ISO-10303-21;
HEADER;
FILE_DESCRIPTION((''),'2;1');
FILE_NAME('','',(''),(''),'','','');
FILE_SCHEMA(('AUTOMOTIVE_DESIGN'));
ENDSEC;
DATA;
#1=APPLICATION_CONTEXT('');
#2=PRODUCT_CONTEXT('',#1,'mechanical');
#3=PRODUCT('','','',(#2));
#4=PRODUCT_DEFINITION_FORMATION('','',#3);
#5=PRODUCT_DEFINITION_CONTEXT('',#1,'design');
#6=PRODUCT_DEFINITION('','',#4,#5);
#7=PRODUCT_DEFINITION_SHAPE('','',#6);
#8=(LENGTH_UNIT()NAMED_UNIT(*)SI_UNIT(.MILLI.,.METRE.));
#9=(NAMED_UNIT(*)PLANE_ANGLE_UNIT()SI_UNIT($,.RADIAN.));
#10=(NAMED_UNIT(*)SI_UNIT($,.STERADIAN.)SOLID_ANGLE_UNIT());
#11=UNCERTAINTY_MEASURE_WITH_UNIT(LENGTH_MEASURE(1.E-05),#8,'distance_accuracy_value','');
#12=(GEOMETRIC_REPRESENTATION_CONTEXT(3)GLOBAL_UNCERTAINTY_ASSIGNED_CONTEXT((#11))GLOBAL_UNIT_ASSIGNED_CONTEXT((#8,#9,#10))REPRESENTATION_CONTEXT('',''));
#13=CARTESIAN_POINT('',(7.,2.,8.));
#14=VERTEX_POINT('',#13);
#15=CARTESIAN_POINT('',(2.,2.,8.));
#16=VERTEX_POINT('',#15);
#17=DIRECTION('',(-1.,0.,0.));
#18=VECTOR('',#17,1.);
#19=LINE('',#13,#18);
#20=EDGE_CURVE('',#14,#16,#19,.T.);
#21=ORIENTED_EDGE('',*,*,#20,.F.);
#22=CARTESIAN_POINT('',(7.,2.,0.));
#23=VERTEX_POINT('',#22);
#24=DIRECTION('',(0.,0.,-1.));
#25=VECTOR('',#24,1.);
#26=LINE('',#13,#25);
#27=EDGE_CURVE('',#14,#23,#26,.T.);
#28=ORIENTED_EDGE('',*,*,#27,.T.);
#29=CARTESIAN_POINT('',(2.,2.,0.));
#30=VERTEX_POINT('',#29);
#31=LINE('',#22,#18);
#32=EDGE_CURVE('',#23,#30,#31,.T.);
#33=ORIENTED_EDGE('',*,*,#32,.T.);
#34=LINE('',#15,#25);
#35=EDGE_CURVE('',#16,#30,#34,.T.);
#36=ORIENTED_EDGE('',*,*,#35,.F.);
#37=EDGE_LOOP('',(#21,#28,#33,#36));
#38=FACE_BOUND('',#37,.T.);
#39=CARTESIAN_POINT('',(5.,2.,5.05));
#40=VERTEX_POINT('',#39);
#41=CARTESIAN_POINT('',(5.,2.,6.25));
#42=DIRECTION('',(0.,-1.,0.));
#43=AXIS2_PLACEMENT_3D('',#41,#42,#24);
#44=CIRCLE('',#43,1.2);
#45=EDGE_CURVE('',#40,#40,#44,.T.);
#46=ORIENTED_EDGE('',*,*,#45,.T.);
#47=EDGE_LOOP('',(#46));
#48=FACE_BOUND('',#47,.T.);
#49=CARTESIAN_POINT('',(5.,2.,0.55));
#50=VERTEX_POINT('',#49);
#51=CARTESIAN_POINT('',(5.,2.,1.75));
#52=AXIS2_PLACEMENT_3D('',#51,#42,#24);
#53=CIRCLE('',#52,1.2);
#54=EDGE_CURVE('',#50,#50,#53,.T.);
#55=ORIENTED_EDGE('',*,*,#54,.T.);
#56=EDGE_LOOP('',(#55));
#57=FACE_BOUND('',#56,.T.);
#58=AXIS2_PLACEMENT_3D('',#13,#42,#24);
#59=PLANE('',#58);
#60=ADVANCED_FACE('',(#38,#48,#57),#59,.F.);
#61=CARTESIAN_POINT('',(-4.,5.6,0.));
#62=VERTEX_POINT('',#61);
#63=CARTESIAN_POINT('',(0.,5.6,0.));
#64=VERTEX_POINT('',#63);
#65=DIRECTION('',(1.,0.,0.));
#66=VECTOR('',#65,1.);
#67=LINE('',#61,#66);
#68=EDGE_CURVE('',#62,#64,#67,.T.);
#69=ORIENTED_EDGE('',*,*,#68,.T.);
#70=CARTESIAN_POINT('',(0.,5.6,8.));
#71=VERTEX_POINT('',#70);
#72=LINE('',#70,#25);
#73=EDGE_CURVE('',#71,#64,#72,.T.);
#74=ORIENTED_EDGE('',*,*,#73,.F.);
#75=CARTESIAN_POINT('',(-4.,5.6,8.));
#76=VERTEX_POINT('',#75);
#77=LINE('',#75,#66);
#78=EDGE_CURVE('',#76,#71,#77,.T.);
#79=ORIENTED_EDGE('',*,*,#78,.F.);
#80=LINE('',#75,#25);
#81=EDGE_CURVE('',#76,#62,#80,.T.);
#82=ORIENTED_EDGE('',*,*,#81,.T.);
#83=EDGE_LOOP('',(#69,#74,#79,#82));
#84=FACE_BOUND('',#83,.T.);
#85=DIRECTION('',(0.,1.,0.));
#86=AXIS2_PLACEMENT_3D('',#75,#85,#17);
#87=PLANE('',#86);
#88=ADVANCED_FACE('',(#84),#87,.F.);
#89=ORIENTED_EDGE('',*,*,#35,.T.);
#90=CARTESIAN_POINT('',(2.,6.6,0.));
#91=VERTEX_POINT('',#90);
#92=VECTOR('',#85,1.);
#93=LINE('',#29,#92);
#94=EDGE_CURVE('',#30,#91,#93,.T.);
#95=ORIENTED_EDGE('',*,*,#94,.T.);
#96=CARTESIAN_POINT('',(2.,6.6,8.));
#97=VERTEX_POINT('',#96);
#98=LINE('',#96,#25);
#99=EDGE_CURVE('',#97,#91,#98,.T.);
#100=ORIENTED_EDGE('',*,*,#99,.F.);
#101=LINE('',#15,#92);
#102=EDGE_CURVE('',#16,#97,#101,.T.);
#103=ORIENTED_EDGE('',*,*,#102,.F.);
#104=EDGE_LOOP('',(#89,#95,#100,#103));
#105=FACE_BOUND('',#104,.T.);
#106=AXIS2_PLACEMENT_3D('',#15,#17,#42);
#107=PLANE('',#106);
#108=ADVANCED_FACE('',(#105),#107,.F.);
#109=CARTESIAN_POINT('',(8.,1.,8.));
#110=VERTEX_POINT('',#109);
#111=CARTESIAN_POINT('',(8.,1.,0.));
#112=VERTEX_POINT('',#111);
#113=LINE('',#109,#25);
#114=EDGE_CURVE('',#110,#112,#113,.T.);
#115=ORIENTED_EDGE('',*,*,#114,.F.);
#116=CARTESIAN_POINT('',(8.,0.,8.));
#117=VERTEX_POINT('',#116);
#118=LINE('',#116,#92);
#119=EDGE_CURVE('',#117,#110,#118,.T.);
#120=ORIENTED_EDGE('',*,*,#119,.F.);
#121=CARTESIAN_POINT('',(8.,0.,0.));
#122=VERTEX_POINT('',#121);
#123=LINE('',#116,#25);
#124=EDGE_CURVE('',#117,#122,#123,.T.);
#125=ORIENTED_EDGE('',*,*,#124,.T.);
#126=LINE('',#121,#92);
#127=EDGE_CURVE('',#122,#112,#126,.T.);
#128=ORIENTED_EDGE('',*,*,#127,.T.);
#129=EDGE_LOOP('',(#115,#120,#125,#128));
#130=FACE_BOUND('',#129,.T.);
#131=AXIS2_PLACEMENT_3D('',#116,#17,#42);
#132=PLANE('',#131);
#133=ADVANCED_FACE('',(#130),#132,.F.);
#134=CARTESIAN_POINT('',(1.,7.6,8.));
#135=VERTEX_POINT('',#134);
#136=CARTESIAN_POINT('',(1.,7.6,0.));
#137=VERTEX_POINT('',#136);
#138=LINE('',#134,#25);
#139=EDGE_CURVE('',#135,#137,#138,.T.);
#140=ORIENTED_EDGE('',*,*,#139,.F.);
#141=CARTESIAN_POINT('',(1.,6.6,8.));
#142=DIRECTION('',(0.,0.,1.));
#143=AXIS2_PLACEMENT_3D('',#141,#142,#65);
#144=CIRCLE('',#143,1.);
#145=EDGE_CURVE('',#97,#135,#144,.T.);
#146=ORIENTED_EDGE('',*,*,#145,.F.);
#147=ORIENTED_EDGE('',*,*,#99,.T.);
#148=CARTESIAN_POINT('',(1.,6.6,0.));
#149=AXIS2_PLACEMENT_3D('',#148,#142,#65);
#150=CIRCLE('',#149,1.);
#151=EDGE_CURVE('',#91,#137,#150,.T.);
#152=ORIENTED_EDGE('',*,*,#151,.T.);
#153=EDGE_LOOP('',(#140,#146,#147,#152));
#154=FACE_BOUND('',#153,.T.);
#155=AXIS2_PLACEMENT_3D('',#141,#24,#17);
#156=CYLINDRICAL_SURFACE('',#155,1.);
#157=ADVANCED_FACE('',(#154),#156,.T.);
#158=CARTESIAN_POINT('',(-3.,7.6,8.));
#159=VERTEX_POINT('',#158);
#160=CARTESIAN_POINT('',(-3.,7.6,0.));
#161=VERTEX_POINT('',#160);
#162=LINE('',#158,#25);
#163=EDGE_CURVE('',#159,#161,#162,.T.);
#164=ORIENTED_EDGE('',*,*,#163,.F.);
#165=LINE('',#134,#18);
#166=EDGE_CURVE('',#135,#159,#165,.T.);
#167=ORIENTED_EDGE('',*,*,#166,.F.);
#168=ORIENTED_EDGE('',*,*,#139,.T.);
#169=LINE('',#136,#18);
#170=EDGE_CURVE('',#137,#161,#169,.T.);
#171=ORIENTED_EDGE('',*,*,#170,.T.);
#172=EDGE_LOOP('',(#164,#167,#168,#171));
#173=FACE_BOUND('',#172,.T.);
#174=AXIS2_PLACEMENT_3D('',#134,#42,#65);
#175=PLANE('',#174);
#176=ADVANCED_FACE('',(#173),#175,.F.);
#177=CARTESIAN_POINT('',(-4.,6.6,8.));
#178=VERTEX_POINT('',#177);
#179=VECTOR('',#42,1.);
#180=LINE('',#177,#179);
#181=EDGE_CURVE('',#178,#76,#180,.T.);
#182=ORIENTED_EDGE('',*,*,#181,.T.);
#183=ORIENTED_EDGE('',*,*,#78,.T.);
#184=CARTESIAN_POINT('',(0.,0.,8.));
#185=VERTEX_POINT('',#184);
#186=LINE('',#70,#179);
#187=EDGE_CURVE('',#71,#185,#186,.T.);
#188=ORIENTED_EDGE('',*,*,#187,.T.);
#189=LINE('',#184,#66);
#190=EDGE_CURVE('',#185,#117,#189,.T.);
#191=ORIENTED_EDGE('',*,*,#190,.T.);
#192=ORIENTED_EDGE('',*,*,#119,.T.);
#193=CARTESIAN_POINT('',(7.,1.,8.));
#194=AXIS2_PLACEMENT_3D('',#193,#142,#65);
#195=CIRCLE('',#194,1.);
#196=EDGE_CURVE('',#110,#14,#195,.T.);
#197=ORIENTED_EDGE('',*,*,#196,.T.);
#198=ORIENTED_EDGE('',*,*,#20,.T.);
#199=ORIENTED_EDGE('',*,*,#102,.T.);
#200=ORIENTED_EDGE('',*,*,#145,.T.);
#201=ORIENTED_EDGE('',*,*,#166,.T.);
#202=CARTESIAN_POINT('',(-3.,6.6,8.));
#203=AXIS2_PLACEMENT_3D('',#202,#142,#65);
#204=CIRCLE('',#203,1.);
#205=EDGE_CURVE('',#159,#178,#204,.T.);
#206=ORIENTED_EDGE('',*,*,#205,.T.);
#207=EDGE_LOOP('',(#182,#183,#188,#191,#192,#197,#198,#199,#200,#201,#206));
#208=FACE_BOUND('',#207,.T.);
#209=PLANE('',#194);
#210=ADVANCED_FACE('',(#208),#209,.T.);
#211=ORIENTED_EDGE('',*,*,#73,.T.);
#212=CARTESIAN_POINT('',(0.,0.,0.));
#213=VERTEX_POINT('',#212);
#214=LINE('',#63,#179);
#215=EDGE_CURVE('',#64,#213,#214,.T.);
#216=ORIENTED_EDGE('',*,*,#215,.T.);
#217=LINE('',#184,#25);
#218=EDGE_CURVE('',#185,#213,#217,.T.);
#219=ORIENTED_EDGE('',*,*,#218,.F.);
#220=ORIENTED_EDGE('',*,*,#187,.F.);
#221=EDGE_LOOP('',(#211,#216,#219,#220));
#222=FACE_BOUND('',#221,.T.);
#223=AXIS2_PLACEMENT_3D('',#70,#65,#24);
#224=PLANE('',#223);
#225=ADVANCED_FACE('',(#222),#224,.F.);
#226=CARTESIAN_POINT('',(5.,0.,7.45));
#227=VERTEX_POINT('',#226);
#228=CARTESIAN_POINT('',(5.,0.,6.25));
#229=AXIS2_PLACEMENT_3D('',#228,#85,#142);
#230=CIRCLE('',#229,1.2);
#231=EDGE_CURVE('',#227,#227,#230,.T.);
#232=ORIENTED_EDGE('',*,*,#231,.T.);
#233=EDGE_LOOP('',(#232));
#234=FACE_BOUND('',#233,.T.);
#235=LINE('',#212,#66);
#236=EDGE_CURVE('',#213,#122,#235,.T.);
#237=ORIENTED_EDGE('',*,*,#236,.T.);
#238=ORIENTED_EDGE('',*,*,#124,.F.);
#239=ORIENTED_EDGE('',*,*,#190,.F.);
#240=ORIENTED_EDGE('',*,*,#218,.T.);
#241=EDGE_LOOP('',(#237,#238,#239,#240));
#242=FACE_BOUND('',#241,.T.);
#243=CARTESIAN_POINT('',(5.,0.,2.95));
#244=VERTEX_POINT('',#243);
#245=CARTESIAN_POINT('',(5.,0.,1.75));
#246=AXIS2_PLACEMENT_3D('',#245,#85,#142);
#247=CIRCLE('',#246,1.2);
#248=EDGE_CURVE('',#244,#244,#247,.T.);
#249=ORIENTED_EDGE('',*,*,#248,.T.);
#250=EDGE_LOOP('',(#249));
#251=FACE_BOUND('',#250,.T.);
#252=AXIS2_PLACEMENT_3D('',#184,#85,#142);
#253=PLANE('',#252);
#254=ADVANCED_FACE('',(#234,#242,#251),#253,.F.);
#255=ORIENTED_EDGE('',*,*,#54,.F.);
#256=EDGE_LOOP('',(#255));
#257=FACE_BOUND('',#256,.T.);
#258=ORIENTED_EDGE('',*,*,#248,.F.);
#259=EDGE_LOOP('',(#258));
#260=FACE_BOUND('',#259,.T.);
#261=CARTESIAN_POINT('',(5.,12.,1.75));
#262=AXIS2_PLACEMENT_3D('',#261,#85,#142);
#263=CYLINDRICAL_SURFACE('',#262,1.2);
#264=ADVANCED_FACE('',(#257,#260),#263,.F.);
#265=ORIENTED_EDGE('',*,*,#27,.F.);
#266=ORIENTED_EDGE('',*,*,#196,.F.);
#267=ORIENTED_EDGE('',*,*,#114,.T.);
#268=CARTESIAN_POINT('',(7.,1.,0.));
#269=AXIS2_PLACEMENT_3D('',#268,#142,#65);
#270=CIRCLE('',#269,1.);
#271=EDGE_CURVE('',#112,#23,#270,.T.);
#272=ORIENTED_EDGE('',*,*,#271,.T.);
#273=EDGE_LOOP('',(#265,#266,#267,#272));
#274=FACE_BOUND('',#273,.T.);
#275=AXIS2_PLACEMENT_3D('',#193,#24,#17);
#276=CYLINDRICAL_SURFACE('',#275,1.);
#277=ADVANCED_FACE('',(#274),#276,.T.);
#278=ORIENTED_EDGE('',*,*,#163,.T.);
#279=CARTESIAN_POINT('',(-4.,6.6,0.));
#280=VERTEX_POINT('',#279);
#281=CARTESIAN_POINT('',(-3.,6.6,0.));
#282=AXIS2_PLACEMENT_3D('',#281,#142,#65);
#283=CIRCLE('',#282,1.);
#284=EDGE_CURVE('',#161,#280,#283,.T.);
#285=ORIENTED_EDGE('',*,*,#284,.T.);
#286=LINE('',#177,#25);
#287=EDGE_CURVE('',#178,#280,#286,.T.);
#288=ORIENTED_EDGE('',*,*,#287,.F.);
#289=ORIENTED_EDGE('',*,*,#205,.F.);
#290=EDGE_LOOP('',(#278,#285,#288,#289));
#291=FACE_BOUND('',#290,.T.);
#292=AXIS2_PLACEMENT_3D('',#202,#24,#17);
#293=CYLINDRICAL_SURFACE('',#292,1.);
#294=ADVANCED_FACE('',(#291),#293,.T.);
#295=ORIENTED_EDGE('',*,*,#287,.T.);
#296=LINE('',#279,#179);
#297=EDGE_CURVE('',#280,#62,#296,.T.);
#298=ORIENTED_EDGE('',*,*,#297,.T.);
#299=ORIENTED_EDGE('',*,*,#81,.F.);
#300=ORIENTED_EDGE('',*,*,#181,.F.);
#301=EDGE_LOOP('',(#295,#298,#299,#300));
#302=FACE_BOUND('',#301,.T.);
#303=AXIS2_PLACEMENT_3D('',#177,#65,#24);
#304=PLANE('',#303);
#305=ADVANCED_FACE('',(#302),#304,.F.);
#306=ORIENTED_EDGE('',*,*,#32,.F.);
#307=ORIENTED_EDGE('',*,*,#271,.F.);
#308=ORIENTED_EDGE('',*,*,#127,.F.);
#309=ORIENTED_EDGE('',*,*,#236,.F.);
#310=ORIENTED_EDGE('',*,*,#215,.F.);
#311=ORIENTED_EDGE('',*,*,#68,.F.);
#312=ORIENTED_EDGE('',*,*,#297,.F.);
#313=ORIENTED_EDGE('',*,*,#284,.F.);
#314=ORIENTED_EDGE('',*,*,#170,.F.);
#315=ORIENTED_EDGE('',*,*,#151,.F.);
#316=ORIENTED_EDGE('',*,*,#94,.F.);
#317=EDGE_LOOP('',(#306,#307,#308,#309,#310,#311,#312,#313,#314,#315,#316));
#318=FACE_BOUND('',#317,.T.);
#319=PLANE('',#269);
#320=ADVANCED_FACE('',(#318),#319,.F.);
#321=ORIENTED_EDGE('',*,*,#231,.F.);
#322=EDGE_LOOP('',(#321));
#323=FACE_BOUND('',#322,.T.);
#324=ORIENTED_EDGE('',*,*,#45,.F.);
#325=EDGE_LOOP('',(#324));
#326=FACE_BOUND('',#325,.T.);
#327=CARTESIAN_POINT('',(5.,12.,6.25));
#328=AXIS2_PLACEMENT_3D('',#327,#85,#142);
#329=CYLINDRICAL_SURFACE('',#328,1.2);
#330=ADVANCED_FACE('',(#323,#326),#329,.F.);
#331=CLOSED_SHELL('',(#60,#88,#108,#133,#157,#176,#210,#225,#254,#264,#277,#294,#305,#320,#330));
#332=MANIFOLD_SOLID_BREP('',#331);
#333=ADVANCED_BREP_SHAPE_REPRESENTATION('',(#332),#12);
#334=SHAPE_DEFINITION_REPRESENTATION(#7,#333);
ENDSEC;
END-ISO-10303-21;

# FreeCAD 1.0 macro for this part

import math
import FreeCAD as App
import Part
import Sketcher
Q = App.Units.Quantity

doc = App.newDocument("Part")
params = doc.addObject("Spreadsheet::Sheet", "Params")
for row, (alias, value) in enumerate([
    ("sketch1_radius", "1 mm"),
    ("sketch1_width", "8 mm"),
    ("sketch1_width2", "4 mm"),
    ("sketch1_height", "1 mm"),
    ("sketch1_height2", "4.6 mm"),
    ("pad1_length", "8 mm"),
    ("sketch2_diameter", "2.4 mm"),
    ("hole_diameter", "2.4 mm"),
    ("sketch3_diameter", "2.4 mm"),
    ("hole2_diameter", "2.4 mm"),
], start=1):
    params.set(f"A{row}", alias)
    params.set(f"B{row}", "=" + value)
    params.setAlias(f"B{row}", alias)

body = doc.addObject("PartDesign::Body", "Body")

sketch1 = body.newObject("Sketcher::SketchObject", "Sketch")
sketch1.AttachmentSupport = (doc.getObject("XY_Plane"), [""])
sketch1.MapMode = "FlatFace"
sketch1.addGeometry([
    Part.LineSegment(App.Vector(0, 0, 0), App.Vector(8, 0, 0)),
    Part.LineSegment(App.Vector(8, 0, 0), App.Vector(8, 1, 0)),
    Part.ArcOfCircle(Part.Circle(App.Vector(7, 1, 0), App.Vector(0, 0, 1), 1), math.radians(0), math.radians(90)),
    Part.LineSegment(App.Vector(7, 2, 0), App.Vector(2, 2, 0)),
    Part.LineSegment(App.Vector(2, 2, 0), App.Vector(2, 6.6, 0)),
    Part.ArcOfCircle(Part.Circle(App.Vector(1, 6.6, 0), App.Vector(0, 0, 1), 1), math.radians(0), math.radians(90)),
    Part.LineSegment(App.Vector(1, 7.6, 0), App.Vector(-3, 7.6, 0)),
    Part.ArcOfCircle(Part.Circle(App.Vector(-3, 6.6, 0), App.Vector(0, 0, 1), 1), math.radians(90), math.radians(180)),
    Part.LineSegment(App.Vector(-4, 6.6, 0), App.Vector(-4, 5.6, 0)),
    Part.LineSegment(App.Vector(-4, 5.6, 0), App.Vector(0, 5.6, 0)),
    Part.LineSegment(App.Vector(0, 5.6, 0), App.Vector(0, 0, 0)),
], False)
sketch1.addConstraint([
    Sketcher.Constraint("Coincident", 0, 2, 1, 1),
    Sketcher.Constraint("Tangent", 1, 2, 2, 1),
    Sketcher.Constraint("Tangent", 2, 2, 3, 1),
    Sketcher.Constraint("Coincident", 3, 2, 4, 1),
    Sketcher.Constraint("Tangent", 4, 2, 5, 1),
    Sketcher.Constraint("Tangent", 5, 2, 6, 1),
    Sketcher.Constraint("Tangent", 6, 2, 7, 1),
    Sketcher.Constraint("Tangent", 7, 2, 8, 1),
    Sketcher.Constraint("Coincident", 8, 2, 9, 1),
    Sketcher.Constraint("Coincident", 9, 2, 10, 1),
    Sketcher.Constraint("Coincident", 10, 2, 0, 1),
    Sketcher.Constraint("Horizontal", 0),
    Sketcher.Constraint("Vertical", 1),
    Sketcher.Constraint("Horizontal", 3),
    Sketcher.Constraint("Vertical", 4),
    Sketcher.Constraint("Horizontal", 6),
    Sketcher.Constraint("Vertical", 8),
    Sketcher.Constraint("Horizontal", 9),
    Sketcher.Constraint("Vertical", 10),
    Sketcher.Constraint("Coincident", 10, 2, -1, 1),
    Sketcher.Constraint("Equal", 2, 5),
    Sketcher.Constraint("Equal", 5, 7),
    Sketcher.Constraint("Equal", 6, 9),
    Sketcher.Constraint("Equal", 1, 8),
    Sketcher.Constraint("Radius", 2, Q("1 mm")),
    Sketcher.Constraint("DistanceX", 0, 1, 0, 2, Q("8 mm")),
    Sketcher.Constraint("DistanceX", 6, 2, 6, 1, Q("4 mm")),
    Sketcher.Constraint("DistanceY", 1, 1, 1, 2, Q("1 mm")),
    Sketcher.Constraint("DistanceY", 4, 1, 4, 2, Q("4.6 mm")),
])
sketch1.setExpression("Constraints[24]", "Params.sketch1_radius")
sketch1.setExpression("Constraints[25]", "Params.sketch1_width")
sketch1.setExpression("Constraints[26]", "Params.sketch1_width2")
sketch1.setExpression("Constraints[27]", "Params.sketch1_height")
sketch1.setExpression("Constraints[28]", "Params.sketch1_height2")
pad1 = body.newObject("PartDesign::Pad", "Pad")
pad1.Profile = sketch1
pad1.setExpression("Length", "Params.pad1_length")

sketch2 = body.newObject("Sketcher::SketchObject", "Sketch001")
sketch2.AttachmentSupport = (doc.getObject("XZ_Plane"), [""])
sketch2.MapMode = "FlatFace"
sketch2.AttachmentOffset = App.Placement(App.Vector(0, 0, -12), App.Rotation())
sketch2.addGeometry(Part.Circle(App.Vector(5, 1.8, 0), App.Vector(0, 0, 1), 1.2), False)
sketch2.addConstraint([
    Sketcher.Constraint("Diameter", 0, Q("2.4 mm")),
    Sketcher.Constraint("DistanceX", -1, 1, 0, 3, Q("5 mm")),
    Sketcher.Constraint("DistanceY", -1, 1, 0, 3, Q("1.75 mm")),
])
sketch2.setExpression("Constraints[0]", "Params.sketch2_diameter")
doc.recompute()
hole = body.newObject("PartDesign::Hole", "Hole")
hole.Profile = sketch2
hole.ThreadType = "None"
hole.setExpression("Diameter", "Params.hole_diameter")
hole.DepthType = "ThroughAll"
hole.Reversed = True

sketch3 = body.newObject("Sketcher::SketchObject", "Sketch002")
sketch3.AttachmentSupport = (doc.getObject("XZ_Plane"), [""])
sketch3.MapMode = "FlatFace"
sketch3.AttachmentOffset = App.Placement(App.Vector(0, 0, -12), App.Rotation())
sketch3.addGeometry(Part.Circle(App.Vector(5, 6.2, 0), App.Vector(0, 0, 1), 1.2), False)
sketch3.addConstraint([
    Sketcher.Constraint("Diameter", 0, Q("2.4 mm")),
    Sketcher.Constraint("DistanceX", -1, 1, 0, 3, Q("5 mm")),
    Sketcher.Constraint("DistanceY", -1, 1, 0, 3, Q("6.25 mm")),
])
sketch3.setExpression("Constraints[0]", "Params.sketch3_diameter")
doc.recompute()
hole2 = body.newObject("PartDesign::Hole", "Hole001")
hole2.Profile = sketch3
hole2.ThreadType = "None"
hole2.setExpression("Diameter", "Params.hole2_diameter")
hole2.DepthType = "ThroughAll"
hole2.Reversed = True

doc.recompute()
